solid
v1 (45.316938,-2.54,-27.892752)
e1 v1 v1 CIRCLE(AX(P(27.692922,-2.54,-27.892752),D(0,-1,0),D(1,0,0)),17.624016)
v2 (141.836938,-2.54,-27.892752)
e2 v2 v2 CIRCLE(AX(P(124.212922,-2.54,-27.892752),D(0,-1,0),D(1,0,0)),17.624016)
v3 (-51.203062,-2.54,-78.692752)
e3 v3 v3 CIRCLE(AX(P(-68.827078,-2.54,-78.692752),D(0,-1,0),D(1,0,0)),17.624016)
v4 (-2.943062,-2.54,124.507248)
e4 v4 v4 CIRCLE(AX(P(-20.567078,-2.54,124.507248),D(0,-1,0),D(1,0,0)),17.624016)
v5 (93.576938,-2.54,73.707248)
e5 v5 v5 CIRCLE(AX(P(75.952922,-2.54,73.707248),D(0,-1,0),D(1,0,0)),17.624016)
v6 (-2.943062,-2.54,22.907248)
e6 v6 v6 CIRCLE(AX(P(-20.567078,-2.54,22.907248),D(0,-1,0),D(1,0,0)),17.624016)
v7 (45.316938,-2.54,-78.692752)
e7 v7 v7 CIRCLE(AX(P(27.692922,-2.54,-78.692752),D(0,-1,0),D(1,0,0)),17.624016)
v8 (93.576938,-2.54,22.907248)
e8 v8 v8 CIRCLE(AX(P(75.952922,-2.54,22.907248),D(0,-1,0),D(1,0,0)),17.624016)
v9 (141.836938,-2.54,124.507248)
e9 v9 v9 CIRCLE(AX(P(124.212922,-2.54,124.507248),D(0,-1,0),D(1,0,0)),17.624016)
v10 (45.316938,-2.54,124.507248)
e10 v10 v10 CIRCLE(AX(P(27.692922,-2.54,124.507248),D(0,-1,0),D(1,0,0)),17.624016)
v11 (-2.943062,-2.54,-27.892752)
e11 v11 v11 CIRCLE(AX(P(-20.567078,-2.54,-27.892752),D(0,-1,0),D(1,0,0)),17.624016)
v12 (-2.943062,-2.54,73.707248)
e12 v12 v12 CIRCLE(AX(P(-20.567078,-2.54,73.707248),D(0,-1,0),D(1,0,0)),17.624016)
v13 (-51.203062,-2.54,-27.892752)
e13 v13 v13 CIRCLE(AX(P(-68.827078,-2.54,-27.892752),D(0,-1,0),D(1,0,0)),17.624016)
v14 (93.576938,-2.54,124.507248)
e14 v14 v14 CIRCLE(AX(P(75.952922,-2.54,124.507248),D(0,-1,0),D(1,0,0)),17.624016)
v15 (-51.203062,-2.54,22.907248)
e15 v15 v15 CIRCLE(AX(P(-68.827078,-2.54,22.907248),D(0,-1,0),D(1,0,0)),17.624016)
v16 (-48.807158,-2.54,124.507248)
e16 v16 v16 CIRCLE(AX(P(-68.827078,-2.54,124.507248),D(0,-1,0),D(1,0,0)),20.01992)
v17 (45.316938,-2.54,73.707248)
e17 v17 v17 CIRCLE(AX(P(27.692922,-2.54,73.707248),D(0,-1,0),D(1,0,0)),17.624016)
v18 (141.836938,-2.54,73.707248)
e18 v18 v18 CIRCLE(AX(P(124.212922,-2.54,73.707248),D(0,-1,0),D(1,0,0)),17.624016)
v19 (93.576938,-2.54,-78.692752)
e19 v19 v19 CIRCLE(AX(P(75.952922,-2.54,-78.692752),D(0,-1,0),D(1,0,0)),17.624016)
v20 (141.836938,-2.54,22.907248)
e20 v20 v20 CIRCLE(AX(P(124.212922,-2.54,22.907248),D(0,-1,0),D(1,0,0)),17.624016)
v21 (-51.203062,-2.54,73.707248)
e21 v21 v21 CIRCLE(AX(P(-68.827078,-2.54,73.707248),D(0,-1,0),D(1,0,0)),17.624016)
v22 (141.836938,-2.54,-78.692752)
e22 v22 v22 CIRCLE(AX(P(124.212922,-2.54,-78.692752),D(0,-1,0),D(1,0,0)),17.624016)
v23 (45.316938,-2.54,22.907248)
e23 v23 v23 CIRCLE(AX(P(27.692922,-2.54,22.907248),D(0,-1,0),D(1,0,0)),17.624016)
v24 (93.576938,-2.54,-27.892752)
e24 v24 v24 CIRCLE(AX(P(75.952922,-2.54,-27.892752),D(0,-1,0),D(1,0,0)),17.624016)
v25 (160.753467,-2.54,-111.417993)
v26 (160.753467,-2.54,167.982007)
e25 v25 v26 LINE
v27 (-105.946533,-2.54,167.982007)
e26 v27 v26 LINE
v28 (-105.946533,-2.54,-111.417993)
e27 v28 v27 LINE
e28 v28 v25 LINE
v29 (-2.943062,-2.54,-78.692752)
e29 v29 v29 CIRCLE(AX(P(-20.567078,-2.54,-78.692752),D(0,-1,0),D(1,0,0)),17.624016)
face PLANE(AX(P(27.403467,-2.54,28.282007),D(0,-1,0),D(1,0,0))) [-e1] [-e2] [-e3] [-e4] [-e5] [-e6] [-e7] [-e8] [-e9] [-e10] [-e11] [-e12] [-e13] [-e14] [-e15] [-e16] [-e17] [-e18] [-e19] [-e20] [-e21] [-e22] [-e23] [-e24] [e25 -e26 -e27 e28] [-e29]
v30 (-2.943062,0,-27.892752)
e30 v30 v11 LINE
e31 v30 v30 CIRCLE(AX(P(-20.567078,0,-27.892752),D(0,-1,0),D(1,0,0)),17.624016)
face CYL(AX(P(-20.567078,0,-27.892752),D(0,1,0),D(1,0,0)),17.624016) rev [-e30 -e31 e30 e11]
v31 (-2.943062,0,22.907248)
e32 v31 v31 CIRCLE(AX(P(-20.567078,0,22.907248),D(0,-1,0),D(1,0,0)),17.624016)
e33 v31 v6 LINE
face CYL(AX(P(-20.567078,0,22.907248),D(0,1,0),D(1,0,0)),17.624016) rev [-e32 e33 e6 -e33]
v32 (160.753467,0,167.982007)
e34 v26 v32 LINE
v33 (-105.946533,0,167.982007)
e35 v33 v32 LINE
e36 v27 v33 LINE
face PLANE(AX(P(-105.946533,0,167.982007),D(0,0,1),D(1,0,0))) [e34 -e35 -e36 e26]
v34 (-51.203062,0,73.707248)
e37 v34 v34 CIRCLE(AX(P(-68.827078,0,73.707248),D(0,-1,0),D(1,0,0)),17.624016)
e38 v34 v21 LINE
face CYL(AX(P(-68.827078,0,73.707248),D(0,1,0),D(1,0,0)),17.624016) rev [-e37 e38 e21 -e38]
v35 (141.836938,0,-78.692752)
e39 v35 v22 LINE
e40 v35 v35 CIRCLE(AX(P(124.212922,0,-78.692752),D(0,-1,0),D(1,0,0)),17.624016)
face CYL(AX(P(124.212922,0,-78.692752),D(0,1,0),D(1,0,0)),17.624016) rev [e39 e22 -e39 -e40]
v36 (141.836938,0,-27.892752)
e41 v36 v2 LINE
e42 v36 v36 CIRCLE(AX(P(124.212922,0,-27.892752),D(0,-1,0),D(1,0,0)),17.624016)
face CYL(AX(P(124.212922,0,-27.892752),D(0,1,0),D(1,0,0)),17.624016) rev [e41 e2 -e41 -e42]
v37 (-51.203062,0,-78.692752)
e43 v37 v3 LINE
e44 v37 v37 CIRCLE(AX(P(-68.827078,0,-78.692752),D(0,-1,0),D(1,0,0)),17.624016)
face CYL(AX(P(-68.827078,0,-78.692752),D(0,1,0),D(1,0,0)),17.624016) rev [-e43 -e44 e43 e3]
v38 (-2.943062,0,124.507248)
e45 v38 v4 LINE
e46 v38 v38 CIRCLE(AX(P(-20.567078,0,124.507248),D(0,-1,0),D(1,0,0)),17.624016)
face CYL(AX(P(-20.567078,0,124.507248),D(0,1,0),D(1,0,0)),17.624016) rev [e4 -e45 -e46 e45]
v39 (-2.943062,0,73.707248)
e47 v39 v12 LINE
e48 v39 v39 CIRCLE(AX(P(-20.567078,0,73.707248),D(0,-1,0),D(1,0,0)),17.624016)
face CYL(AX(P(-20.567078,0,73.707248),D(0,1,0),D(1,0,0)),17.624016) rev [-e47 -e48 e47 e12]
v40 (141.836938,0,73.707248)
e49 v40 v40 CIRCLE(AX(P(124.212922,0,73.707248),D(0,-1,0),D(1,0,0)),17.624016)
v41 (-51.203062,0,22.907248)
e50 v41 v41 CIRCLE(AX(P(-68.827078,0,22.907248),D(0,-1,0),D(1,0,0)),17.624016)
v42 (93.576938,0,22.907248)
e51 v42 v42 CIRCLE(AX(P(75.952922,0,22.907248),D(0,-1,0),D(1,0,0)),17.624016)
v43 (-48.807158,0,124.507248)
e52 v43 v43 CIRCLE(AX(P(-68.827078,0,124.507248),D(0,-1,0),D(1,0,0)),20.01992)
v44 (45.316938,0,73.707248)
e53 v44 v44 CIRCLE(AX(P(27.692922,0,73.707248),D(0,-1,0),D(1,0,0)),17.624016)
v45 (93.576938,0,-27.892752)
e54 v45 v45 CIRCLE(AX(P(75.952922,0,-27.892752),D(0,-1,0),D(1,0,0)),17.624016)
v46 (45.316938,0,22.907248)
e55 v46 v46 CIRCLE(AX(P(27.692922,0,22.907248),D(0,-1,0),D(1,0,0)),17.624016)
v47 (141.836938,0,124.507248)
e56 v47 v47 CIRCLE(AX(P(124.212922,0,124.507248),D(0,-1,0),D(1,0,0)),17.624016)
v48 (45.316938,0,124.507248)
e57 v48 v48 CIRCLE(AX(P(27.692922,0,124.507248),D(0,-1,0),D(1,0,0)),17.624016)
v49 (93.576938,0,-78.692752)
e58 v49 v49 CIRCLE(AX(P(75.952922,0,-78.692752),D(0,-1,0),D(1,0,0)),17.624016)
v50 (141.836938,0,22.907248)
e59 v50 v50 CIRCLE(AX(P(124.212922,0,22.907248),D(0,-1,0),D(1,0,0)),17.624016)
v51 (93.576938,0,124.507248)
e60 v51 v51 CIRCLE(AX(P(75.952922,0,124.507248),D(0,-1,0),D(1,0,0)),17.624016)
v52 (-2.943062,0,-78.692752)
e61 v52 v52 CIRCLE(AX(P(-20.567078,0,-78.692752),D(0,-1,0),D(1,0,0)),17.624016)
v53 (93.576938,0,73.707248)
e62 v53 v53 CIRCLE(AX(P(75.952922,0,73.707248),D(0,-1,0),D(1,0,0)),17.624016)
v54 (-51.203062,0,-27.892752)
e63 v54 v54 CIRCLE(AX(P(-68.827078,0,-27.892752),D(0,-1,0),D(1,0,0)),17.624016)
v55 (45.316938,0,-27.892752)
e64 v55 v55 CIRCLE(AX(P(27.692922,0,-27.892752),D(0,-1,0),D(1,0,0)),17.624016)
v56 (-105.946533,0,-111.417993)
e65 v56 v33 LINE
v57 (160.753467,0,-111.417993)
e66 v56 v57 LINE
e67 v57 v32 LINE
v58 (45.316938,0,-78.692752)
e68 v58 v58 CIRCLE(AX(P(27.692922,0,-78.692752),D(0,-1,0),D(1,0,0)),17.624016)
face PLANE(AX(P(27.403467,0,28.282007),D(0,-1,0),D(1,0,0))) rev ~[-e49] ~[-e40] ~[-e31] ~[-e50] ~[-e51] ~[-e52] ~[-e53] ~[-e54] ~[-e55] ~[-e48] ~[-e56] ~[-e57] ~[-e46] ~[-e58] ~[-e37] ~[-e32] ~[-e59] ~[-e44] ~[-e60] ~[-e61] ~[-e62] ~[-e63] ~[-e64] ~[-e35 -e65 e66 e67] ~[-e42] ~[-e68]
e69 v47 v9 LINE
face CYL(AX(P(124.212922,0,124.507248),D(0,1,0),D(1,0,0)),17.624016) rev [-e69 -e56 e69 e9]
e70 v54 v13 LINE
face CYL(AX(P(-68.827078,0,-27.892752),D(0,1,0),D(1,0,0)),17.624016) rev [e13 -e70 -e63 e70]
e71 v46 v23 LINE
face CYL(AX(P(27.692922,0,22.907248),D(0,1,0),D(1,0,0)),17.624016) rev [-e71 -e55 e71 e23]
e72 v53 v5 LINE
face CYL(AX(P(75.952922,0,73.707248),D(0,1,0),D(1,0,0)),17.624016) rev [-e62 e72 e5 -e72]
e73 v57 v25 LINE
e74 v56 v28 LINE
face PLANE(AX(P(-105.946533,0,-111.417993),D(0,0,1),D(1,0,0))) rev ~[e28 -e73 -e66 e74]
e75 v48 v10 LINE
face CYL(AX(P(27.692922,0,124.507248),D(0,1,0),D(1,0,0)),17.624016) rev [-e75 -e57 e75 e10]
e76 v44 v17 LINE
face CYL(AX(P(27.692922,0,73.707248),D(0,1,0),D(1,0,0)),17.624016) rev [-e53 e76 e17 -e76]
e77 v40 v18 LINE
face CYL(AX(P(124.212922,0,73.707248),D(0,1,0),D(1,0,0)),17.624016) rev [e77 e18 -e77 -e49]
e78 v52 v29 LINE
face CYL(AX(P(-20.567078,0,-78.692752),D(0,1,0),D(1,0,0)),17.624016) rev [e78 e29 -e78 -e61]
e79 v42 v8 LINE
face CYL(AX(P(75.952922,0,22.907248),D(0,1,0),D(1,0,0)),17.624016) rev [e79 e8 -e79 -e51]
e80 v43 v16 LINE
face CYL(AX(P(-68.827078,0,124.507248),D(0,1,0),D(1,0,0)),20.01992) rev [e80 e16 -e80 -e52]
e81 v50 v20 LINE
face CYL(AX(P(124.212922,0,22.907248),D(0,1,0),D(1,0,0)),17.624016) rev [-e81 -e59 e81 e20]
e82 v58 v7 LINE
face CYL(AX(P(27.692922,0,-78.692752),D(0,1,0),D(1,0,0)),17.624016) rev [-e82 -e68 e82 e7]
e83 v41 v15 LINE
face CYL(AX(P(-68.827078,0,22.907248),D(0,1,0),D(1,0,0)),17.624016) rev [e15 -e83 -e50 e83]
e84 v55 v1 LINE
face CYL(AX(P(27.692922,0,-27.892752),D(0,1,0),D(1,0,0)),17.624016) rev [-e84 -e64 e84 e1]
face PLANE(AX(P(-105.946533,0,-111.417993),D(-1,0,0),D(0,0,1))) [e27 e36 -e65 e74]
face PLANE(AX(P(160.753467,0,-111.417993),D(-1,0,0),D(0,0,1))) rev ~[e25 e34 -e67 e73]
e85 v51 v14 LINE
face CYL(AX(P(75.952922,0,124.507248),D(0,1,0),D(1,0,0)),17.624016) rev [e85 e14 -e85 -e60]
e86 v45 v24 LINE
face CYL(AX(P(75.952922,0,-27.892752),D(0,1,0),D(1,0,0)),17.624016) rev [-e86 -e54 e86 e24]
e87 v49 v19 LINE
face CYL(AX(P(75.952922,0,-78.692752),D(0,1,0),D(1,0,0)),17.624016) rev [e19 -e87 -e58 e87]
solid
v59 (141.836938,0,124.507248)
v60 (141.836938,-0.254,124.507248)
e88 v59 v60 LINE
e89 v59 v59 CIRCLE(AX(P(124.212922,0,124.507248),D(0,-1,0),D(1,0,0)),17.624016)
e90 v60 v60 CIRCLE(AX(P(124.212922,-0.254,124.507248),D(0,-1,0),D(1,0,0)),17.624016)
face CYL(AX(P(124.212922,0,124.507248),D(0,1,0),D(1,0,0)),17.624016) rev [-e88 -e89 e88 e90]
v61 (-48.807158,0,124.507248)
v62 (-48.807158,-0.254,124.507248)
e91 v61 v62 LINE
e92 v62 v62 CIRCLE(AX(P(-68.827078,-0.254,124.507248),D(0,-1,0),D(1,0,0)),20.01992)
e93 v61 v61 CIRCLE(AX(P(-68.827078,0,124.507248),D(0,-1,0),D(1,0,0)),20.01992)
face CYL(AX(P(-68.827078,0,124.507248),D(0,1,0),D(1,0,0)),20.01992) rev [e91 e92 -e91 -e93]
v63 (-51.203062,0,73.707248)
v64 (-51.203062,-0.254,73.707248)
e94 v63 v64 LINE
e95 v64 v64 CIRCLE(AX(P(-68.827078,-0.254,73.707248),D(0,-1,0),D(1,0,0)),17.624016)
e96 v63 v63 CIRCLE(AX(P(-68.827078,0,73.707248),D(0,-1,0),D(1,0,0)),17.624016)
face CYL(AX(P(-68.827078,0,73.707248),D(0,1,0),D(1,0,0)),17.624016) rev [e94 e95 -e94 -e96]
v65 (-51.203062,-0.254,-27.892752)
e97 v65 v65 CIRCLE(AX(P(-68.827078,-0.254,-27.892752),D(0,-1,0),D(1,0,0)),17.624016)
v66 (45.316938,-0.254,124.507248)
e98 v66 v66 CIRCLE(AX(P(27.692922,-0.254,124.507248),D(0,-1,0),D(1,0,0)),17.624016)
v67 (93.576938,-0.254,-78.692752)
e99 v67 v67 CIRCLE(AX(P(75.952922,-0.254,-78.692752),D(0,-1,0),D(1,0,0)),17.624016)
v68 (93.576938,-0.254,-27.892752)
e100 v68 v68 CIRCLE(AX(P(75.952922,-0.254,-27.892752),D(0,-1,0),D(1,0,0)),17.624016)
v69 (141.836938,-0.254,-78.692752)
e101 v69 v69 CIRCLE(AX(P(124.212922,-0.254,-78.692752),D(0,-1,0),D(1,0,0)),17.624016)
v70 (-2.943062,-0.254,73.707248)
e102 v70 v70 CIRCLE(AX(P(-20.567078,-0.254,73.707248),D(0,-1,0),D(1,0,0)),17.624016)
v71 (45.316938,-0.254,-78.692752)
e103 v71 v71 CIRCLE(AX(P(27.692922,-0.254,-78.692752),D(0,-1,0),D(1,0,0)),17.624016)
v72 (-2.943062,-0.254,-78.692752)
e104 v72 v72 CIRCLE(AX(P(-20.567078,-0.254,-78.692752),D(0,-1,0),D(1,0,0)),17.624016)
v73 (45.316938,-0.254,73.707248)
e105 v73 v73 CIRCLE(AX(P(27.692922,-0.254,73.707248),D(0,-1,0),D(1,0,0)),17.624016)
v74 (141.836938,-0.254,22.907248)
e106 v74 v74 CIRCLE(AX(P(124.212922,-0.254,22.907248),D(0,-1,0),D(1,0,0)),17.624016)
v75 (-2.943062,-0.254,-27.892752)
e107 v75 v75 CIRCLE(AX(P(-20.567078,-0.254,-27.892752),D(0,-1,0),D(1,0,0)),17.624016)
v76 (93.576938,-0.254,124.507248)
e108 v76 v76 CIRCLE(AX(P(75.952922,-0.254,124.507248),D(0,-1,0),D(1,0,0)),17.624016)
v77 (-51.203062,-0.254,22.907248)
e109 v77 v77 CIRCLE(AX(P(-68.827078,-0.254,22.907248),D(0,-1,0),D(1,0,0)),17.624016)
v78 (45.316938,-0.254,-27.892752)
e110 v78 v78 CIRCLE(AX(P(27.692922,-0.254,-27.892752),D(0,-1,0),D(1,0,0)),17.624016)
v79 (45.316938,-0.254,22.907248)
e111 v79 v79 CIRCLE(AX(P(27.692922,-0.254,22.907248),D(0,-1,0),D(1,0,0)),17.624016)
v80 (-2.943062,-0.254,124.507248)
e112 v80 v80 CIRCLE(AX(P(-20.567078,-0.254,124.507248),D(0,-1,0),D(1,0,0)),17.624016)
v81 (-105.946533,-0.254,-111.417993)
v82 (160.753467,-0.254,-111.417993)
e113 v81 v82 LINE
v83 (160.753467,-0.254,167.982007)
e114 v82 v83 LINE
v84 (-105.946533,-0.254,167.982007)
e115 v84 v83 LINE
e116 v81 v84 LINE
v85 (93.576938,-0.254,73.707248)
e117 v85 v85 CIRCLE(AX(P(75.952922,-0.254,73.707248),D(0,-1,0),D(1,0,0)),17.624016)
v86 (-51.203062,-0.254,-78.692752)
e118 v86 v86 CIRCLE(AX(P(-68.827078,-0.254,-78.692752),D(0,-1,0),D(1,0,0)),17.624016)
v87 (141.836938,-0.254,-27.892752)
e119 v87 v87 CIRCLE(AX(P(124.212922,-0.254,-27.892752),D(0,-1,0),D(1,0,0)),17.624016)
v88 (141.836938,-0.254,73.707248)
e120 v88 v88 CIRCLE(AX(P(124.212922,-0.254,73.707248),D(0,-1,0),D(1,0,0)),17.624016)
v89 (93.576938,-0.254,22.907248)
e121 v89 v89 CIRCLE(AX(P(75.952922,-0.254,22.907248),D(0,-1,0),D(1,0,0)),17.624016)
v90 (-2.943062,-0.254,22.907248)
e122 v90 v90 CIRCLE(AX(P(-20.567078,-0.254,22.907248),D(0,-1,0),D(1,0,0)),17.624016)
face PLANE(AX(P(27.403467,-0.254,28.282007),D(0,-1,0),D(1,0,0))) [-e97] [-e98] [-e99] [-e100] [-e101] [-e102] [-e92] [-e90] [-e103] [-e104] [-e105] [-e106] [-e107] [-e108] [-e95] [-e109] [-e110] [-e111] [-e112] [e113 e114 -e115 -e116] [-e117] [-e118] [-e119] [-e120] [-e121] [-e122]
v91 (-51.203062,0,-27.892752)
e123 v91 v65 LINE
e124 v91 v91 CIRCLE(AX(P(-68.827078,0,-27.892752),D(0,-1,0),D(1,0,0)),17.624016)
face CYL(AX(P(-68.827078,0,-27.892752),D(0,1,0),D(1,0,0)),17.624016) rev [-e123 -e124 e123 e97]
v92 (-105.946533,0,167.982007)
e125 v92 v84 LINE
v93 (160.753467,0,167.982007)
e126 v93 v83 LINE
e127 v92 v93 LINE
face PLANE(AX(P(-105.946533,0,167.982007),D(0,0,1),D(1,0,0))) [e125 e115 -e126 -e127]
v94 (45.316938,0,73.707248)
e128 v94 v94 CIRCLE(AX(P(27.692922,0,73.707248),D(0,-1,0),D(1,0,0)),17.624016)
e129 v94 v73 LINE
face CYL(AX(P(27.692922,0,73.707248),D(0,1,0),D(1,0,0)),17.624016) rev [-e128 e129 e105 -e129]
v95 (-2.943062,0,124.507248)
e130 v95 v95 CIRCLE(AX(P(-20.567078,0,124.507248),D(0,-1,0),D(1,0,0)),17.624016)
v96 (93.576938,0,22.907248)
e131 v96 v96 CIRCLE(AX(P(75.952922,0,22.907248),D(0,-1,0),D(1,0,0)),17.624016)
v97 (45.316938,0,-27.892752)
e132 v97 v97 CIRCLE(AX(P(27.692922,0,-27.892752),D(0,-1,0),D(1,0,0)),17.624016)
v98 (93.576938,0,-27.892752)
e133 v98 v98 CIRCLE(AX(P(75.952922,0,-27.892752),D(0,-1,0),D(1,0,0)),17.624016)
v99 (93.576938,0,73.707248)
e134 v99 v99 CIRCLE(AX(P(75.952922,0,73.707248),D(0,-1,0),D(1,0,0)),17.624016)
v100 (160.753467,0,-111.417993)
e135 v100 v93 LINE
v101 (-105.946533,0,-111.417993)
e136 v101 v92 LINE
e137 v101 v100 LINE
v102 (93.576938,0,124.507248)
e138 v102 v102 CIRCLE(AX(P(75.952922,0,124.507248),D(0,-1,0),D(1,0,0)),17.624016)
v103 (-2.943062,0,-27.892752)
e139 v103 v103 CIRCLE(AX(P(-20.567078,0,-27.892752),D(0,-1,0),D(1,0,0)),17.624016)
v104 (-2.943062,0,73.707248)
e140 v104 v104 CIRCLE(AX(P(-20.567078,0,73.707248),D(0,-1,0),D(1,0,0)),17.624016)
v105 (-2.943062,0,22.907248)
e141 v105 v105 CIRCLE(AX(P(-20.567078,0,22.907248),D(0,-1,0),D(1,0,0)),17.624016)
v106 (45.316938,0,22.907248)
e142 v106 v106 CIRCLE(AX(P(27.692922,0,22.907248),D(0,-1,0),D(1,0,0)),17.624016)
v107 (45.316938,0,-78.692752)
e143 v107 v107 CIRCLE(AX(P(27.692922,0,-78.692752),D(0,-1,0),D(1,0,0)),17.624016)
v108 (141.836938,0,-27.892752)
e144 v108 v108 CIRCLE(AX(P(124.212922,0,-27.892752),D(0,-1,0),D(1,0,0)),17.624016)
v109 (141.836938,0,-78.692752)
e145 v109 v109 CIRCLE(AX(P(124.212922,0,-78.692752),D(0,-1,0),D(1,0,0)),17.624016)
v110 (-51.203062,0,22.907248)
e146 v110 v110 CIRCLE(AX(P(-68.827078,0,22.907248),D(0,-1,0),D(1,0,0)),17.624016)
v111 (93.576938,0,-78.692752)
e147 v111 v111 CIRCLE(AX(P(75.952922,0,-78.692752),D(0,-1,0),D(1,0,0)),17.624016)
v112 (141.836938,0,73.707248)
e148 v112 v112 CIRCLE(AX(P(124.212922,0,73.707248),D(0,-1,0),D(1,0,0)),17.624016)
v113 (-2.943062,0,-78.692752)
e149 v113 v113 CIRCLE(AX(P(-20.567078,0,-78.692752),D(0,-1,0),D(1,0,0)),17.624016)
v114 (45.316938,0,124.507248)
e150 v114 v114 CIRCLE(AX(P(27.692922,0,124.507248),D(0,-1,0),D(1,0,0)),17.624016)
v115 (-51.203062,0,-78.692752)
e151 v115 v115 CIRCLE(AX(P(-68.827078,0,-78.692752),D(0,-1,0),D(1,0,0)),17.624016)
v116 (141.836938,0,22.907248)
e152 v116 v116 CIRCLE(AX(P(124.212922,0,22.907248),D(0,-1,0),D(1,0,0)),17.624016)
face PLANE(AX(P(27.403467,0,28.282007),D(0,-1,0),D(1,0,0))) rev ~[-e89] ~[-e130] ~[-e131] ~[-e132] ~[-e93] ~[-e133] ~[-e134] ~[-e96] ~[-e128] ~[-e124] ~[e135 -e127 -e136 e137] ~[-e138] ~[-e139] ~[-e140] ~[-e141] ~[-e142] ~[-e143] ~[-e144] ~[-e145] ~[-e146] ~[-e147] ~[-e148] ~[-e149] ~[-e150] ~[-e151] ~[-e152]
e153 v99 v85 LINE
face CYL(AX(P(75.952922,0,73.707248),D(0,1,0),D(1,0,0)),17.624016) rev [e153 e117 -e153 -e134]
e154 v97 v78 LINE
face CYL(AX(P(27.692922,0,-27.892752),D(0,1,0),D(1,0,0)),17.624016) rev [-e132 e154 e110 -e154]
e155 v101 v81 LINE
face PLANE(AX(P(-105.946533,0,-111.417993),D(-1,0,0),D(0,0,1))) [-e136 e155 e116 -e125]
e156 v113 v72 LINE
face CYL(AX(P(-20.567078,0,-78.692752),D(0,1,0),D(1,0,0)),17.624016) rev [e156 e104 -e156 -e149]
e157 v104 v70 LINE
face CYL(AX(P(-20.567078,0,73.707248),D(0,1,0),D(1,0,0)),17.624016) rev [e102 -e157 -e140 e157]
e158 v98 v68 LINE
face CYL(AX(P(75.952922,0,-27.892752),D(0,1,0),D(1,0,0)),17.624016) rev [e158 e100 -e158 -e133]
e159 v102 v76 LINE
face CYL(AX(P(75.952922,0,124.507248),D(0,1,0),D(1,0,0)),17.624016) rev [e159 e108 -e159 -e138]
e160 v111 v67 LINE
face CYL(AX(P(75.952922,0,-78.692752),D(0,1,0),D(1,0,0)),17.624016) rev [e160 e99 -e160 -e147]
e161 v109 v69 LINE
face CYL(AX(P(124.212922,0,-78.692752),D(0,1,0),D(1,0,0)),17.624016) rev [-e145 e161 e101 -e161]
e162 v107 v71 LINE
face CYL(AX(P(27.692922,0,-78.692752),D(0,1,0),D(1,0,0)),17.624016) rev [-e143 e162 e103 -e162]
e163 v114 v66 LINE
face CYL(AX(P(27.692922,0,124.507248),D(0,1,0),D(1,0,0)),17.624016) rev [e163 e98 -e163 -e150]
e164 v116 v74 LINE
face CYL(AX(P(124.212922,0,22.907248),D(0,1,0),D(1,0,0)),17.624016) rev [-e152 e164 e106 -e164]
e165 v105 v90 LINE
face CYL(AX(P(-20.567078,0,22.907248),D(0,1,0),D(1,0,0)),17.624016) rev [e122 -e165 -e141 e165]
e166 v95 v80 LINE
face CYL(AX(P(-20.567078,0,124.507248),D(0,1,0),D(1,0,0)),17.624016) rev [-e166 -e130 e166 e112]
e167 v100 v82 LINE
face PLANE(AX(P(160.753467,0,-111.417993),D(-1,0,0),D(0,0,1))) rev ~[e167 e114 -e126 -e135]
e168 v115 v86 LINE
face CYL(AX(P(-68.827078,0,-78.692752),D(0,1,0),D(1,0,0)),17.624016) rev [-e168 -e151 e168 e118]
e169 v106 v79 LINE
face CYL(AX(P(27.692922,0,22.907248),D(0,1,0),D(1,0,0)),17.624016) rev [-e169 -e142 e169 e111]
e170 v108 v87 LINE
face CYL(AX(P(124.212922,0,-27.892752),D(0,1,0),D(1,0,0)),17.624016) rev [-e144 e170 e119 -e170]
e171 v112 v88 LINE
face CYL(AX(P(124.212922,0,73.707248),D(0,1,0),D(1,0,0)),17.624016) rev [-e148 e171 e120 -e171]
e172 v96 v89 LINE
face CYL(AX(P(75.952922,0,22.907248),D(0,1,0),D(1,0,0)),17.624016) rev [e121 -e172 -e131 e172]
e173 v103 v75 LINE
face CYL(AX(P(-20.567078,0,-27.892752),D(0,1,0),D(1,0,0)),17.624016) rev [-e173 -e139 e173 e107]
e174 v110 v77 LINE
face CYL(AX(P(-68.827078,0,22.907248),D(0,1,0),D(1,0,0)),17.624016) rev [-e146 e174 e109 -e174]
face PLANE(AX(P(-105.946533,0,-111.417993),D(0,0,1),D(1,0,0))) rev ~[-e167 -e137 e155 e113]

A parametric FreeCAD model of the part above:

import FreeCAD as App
import Part
import Sketcher
Q = App.Units.Quantity


def add_polygon(sketch, points):
    """Adds a closed chain of lines whose ends are joined by coincident constraints."""
    first, n = sketch.GeometryCount, len(points)
    for a, b in zip(points, points[1:] + points[:1]):
        sketch.addGeometry(Part.LineSegment(App.Vector(*a, 0), App.Vector(*b, 0)), False)
    for i in range(n):
        sketch.addConstraint(Sketcher.Constraint("Coincident", first + i, 2, first + (i + 1) % n, 1))

doc = App.newDocument("Part")
body = doc.addObject("PartDesign::Body", "Body")

sketch1 = body.newObject("Sketcher::SketchObject", "Sketch")
sketch1.AttachmentSupport = (doc.getObject("XZ_Plane"), [""])
sketch1.MapMode = "FlatFace"
add_polygon(sketch1, [(-105.946533, 167.982007), (-105.946533, -111.417993), (160.753467, -111.417993), (160.753467, 167.982007)])
sketch1.addGeometry(Part.Circle(App.Vector(-68.827078, -78.692752, 0), App.Vector(0, 0, 1), 17.624016), False)
sketch1.addGeometry(Part.Circle(App.Vector(-20.567078, -78.692752, 0), App.Vector(0, 0, 1), 17.624016), False)
sketch1.addGeometry(Part.Circle(App.Vector(-68.827078, -27.892752, 0), App.Vector(0, 0, 1), 17.624016), False)
sketch1.addGeometry(Part.Circle(App.Vector(-68.827078, 22.907248, 0), App.Vector(0, 0, 1), 17.624016), False)
sketch1.addGeometry(Part.Circle(App.Vector(-20.567078, -27.892752, 0), App.Vector(0, 0, 1), 17.624016), False)
sketch1.addGeometry(Part.Circle(App.Vector(-20.567078, 22.907248, 0), App.Vector(0, 0, 1), 17.624016), False)
sketch1.addGeometry(Part.Circle(App.Vector(27.692922, -78.692752, 0), App.Vector(0, 0, 1), 17.624016), False)
sketch1.addGeometry(Part.Circle(App.Vector(75.952922, -78.692752, 0), App.Vector(0, 0, 1), 17.624016), False)
sketch1.addGeometry(Part.Circle(App.Vector(124.212922, -78.692752, 0), App.Vector(0, 0, 1), 17.624016), False)
sketch1.addGeometry(Part.Circle(App.Vector(27.692922, -27.892752, 0), App.Vector(0, 0, 1), 17.624016), False)
sketch1.addGeometry(Part.Circle(App.Vector(75.952922, -27.892752, 0), App.Vector(0, 0, 1), 17.624016), False)
sketch1.addGeometry(Part.Circle(App.Vector(27.692922, 22.907248, 0), App.Vector(0, 0, 1), 17.624016), False)
sketch1.addGeometry(Part.Circle(App.Vector(75.952922, 22.907248, 0), App.Vector(0, 0, 1), 17.624016), False)
sketch1.addGeometry(Part.Circle(App.Vector(124.212922, -27.892752, 0), App.Vector(0, 0, 1), 17.624016), False)
sketch1.addGeometry(Part.Circle(App.Vector(124.212922, 22.907248, 0), App.Vector(0, 0, 1), 17.624016), False)
sketch1.addGeometry(Part.Circle(App.Vector(-68.827078, 73.707248, 0), App.Vector(0, 0, 1), 17.624016), False)
sketch1.addGeometry(Part.Circle(App.Vector(-20.567078, 73.707248, 0), App.Vector(0, 0, 1), 17.624016), False)
sketch1.addGeometry(Part.Circle(App.Vector(-68.827078, 124.507248, 0), App.Vector(0, 0, 1), 20.01992), False)
sketch1.addGeometry(Part.Circle(App.Vector(-20.567078, 124.507248, 0), App.Vector(0, 0, 1), 17.624016), False)
sketch1.addGeometry(Part.Circle(App.Vector(27.692922, 73.707248, 0), App.Vector(0, 0, 1), 17.624016), False)
sketch1.addGeometry(Part.Circle(App.Vector(75.952922, 73.707248, 0), App.Vector(0, 0, 1), 17.624016), False)
sketch1.addGeometry(Part.Circle(App.Vector(124.212922, 73.707248, 0), App.Vector(0, 0, 1), 17.624016), False)
sketch1.addGeometry(Part.Circle(App.Vector(27.692922, 124.507248, 0), App.Vector(0, 0, 1), 17.624016), False)
sketch1.addGeometry(Part.Circle(App.Vector(75.952922, 124.507248, 0), App.Vector(0, 0, 1), 17.624016), False)
sketch1.addGeometry(Part.Circle(App.Vector(124.212922, 124.507248, 0), App.Vector(0, 0, 1), 17.624016), False)
sketch1.addConstraint(Sketcher.Constraint("Vertical", 0))
sketch1.addConstraint(Sketcher.Constraint("Horizontal", 1))
sketch1.addConstraint(Sketcher.Constraint("Vertical", 2))
sketch1.addConstraint(Sketcher.Constraint("Horizontal", 3))
sketch1.addConstraint(Sketcher.Constraint("Equal", 4, 5))
sketch1.addConstraint(Sketcher.Constraint("Equal", 5, 6))
sketch1.addConstraint(Sketcher.Constraint("Equal", 6, 7))
sketch1.addConstraint(Sketcher.Constraint("Equal", 7, 8))
sketch1.addConstraint(Sketcher.Constraint("Equal", 8, 9))
sketch1.addConstraint(Sketcher.Constraint("Equal", 9, 10))
sketch1.addConstraint(Sketcher.Constraint("Equal", 10, 11))
sketch1.addConstraint(Sketcher.Constraint("Equal", 11, 12))
sketch1.addConstraint(Sketcher.Constraint("Equal", 12, 13))
sketch1.addConstraint(Sketcher.Constraint("Equal", 13, 14))
sketch1.addConstraint(Sketcher.Constraint("Equal", 14, 15))
sketch1.addConstraint(Sketcher.Constraint("Equal", 15, 16))
sketch1.addConstraint(Sketcher.Constraint("Equal", 16, 17))
sketch1.addConstraint(Sketcher.Constraint("Equal", 17, 18))
sketch1.addConstraint(Sketcher.Constraint("Equal", 18, 19))
sketch1.addConstraint(Sketcher.Constraint("Equal", 19, 20))
sketch1.addConstraint(Sketcher.Constraint("Equal", 20, 22))
sketch1.addConstraint(Sketcher.Constraint("Equal", 22, 23))
sketch1.addConstraint(Sketcher.Constraint("Equal", 23, 24))
sketch1.addConstraint(Sketcher.Constraint("Equal", 24, 25))
sketch1.addConstraint(Sketcher.Constraint("Equal", 25, 26))
sketch1.addConstraint(Sketcher.Constraint("Equal", 26, 27))
sketch1.addConstraint(Sketcher.Constraint("Equal", 27, 28))
sketch1.addConstraint(Sketcher.Constraint("Horizontal", 4, 3, 5, 3))
sketch1.addConstraint(Sketcher.Constraint("Horizontal", 6, 3, 8, 3))
sketch1.addConstraint(Sketcher.Constraint("Horizontal", 7, 3, 9, 3))
sketch1.addConstraint(Sketcher.Constraint("Horizontal", 5, 3, 10, 3))
sketch1.addConstraint(Sketcher.Constraint("Horizontal", 10, 3, 11, 3))
sketch1.addConstraint(Sketcher.Constraint("Horizontal", 11, 3, 12, 3))
sketch1.addConstraint(Sketcher.Constraint("Horizontal", 8, 3, 13, 3))
sketch1.addConstraint(Sketcher.Constraint("Horizontal", 13, 3, 14, 3))
sketch1.addConstraint(Sketcher.Constraint("Horizontal", 9, 3, 15, 3))
sketch1.addConstraint(Sketcher.Constraint("Horizontal", 15, 3, 16, 3))
sketch1.addConstraint(Sketcher.Constraint("Horizontal", 14, 3, 17, 3))
sketch1.addConstraint(Sketcher.Constraint("Horizontal", 16, 3, 18, 3))
sketch1.addConstraint(Sketcher.Constraint("Horizontal", 19, 3, 20, 3))
sketch1.addConstraint(Sketcher.Constraint("Horizontal", 21, 3, 22, 3))
sketch1.addConstraint(Sketcher.Constraint("Horizontal", 20, 3, 23, 3))
sketch1.addConstraint(Sketcher.Constraint("Horizontal", 23, 3, 24, 3))
sketch1.addConstraint(Sketcher.Constraint("Horizontal", 24, 3, 25, 3))
sketch1.addConstraint(Sketcher.Constraint("Horizontal", 22, 3, 26, 3))
sketch1.addConstraint(Sketcher.Constraint("Horizontal", 26, 3, 27, 3))
sketch1.addConstraint(Sketcher.Constraint("Horizontal", 27, 3, 28, 3))
sketch1.addConstraint(Sketcher.Constraint("Vertical", 4, 3, 6, 3))
sketch1.addConstraint(Sketcher.Constraint("Vertical", 6, 3, 7, 3))
sketch1.addConstraint(Sketcher.Constraint("Vertical", 5, 3, 8, 3))
sketch1.addConstraint(Sketcher.Constraint("Vertical", 8, 3, 9, 3))
sketch1.addConstraint(Sketcher.Constraint("Vertical", 10, 3, 13, 3))
sketch1.addConstraint(Sketcher.Constraint("Vertical", 11, 3, 14, 3))
sketch1.addConstraint(Sketcher.Constraint("Vertical", 13, 3, 15, 3))
sketch1.addConstraint(Sketcher.Constraint("Vertical", 14, 3, 16, 3))
sketch1.addConstraint(Sketcher.Constraint("Vertical", 12, 3, 17, 3))
sketch1.addConstraint(Sketcher.Constraint("Vertical", 17, 3, 18, 3))
sketch1.addConstraint(Sketcher.Constraint("Vertical", 7, 3, 19, 3))
sketch1.addConstraint(Sketcher.Constraint("Vertical", 9, 3, 20, 3))
sketch1.addConstraint(Sketcher.Constraint("Vertical", 19, 3, 21, 3))
sketch1.addConstraint(Sketcher.Constraint("Vertical", 20, 3, 22, 3))
sketch1.addConstraint(Sketcher.Constraint("Vertical", 15, 3, 23, 3))
sketch1.addConstraint(Sketcher.Constraint("Vertical", 16, 3, 24, 3))
sketch1.addConstraint(Sketcher.Constraint("Vertical", 18, 3, 25, 3))
sketch1.addConstraint(Sketcher.Constraint("Vertical", 23, 3, 26, 3))
sketch1.addConstraint(Sketcher.Constraint("Vertical", 24, 3, 27, 3))
sketch1.addConstraint(Sketcher.Constraint("Vertical", 25, 3, 28, 3))
sketch1.addConstraint(Sketcher.Constraint("DistanceY", 0, 2, 0, 1, Q("11 in")))
sketch1.addConstraint(Sketcher.Constraint("DistanceX", 1, 1, 1, 2, Q("10.5 in")))
sketch1.addConstraint(Sketcher.Constraint("DistanceY", 4, 3, 6, 3, Q("2 in")))
sketch1.addConstraint(Sketcher.Constraint("DistanceY", 6, 3, 7, 3, Q("2 in")))
sketch1.addConstraint(Sketcher.Constraint("DistanceY", 7, 3, 19, 3, Q("2 in")))
sketch1.addConstraint(Sketcher.Constraint("DistanceY", 19, 3, 21, 3, Q("2 in")))
sketch1.addConstraint(Sketcher.Constraint("DistanceX", 4, 3, 5, 3, Q("1.9 in")))
sketch1.addConstraint(Sketcher.Constraint("DistanceX", 5, 3, 10, 3, Q("1.9 in")))
sketch1.addConstraint(Sketcher.Constraint("DistanceX", 10, 3, 11, 3, Q("1.9 in")))
sketch1.addConstraint(Sketcher.Constraint("DistanceX", 11, 3, 12, 3, Q("1.9 in")))
sketch1.addConstraint(Sketcher.Constraint("Diameter", 21, 40.03984))
sketch1.addConstraint(Sketcher.Constraint("Diameter", 4, 35.248032))
sketch1.addConstraint(Sketcher.Constraint("DistanceX", 4, 3, -1, 1, 68.827078))
sketch1.addConstraint(Sketcher.Constraint("DistanceY", 4, 3, -1, 1, 78.692752))
sketch1.addConstraint(Sketcher.Constraint("DistanceY", 0, 2, 4, 3, 32.725241))
sketch1.addConstraint(Sketcher.Constraint("DistanceX", 0, 2, -1, 1, 105.946533))
pad1 = body.newObject("PartDesign::Pad", "Pad")
pad1.Profile = sketch1
pad1.Length = Q("0.1 in")

sketch2 = body.newObject("Sketcher::SketchObject", "Sketch001")
sketch2.AttachmentSupport = (doc.getObject("XZ_Plane"), [""])
sketch2.MapMode = "FlatFace"
add_polygon(sketch2, [(-105.946533, 167.982007), (-105.946533, -111.417993), (160.753467, -111.417993), (160.753467, 167.982007)])
sketch2.addGeometry(Part.Circle(App.Vector(-68.827078, -78.692752, 0), App.Vector(0, 0, 1), 17.624016), False)
sketch2.addGeometry(Part.Circle(App.Vector(-20.567078, -78.692752, 0), App.Vector(0, 0, 1), 17.624016), False)
sketch2.addGeometry(Part.Circle(App.Vector(-68.827078, -27.892752, 0), App.Vector(0, 0, 1), 17.624016), False)
sketch2.addGeometry(Part.Circle(App.Vector(-68.827078, 22.907248, 0), App.Vector(0, 0, 1), 17.624016), False)
sketch2.addGeometry(Part.Circle(App.Vector(-20.567078, -27.892752, 0), App.Vector(0, 0, 1), 17.624016), False)
sketch2.addGeometry(Part.Circle(App.Vector(-20.567078, 22.907248, 0), App.Vector(0, 0, 1), 17.624016), False)
sketch2.addGeometry(Part.Circle(App.Vector(27.692922, -78.692752, 0), App.Vector(0, 0, 1), 17.624016), False)
sketch2.addGeometry(Part.Circle(App.Vector(75.952922, -78.692752, 0), App.Vector(0, 0, 1), 17.624016), False)
sketch2.addGeometry(Part.Circle(App.Vector(124.212922, -78.692752, 0), App.Vector(0, 0, 1), 17.624016), False)
sketch2.addGeometry(Part.Circle(App.Vector(27.692922, -27.892752, 0), App.Vector(0, 0, 1), 17.624016), False)
sketch2.addGeometry(Part.Circle(App.Vector(75.952922, -27.892752, 0), App.Vector(0, 0, 1), 17.624016), False)
sketch2.addGeometry(Part.Circle(App.Vector(27.692922, 22.907248, 0), App.Vector(0, 0, 1), 17.624016), False)
sketch2.addGeometry(Part.Circle(App.Vector(75.952922, 22.907248, 0), App.Vector(0, 0, 1), 17.624016), False)
sketch2.addGeometry(Part.Circle(App.Vector(124.212922, -27.892752, 0), App.Vector(0, 0, 1), 17.624016), False)
sketch2.addGeometry(Part.Circle(App.Vector(124.212922, 22.907248, 0), App.Vector(0, 0, 1), 17.624016), False)
sketch2.addGeometry(Part.Circle(App.Vector(-68.827078, 73.707248, 0), App.Vector(0, 0, 1), 17.624016), False)
sketch2.addGeometry(Part.Circle(App.Vector(-20.567078, 73.707248, 0), App.Vector(0, 0, 1), 17.624016), False)
sketch2.addGeometry(Part.Circle(App.Vector(-68.827078, 124.507248, 0), App.Vector(0, 0, 1), 20.01992), False)
sketch2.addGeometry(Part.Circle(App.Vector(-20.567078, 124.507248, 0), App.Vector(0, 0, 1), 17.624016), False)
sketch2.addGeometry(Part.Circle(App.Vector(27.692922, 73.707248, 0), App.Vector(0, 0, 1), 17.624016), False)
sketch2.addGeometry(Part.Circle(App.Vector(75.952922, 73.707248, 0), App.Vector(0, 0, 1), 17.624016), False)
sketch2.addGeometry(Part.Circle(App.Vector(124.212922, 73.707248, 0), App.Vector(0, 0, 1), 17.624016), False)
sketch2.addGeometry(Part.Circle(App.Vector(27.692922, 124.507248, 0), App.Vector(0, 0, 1), 17.624016), False)
sketch2.addGeometry(Part.Circle(App.Vector(75.952922, 124.507248, 0), App.Vector(0, 0, 1), 17.624016), False)
sketch2.addGeometry(Part.Circle(App.Vector(124.212922, 124.507248, 0), App.Vector(0, 0, 1), 17.624016), False)
sketch2.addConstraint(Sketcher.Constraint("Vertical", 0))
sketch2.addConstraint(Sketcher.Constraint("Horizontal", 1))
sketch2.addConstraint(Sketcher.Constraint("Vertical", 2))
sketch2.addConstraint(Sketcher.Constraint("Horizontal", 3))
sketch2.addConstraint(Sketcher.Constraint("Equal", 4, 5))
sketch2.addConstraint(Sketcher.Constraint("Equal", 5, 6))
sketch2.addConstraint(Sketcher.Constraint("Equal", 6, 7))
sketch2.addConstraint(Sketcher.Constraint("Equal", 7, 8))
sketch2.addConstraint(Sketcher.Constraint("Equal", 8, 9))
sketch2.addConstraint(Sketcher.Constraint("Equal", 9, 10))
sketch2.addConstraint(Sketcher.Constraint("Equal", 10, 11))
sketch2.addConstraint(Sketcher.Constraint("Equal", 11, 12))
sketch2.addConstraint(Sketcher.Constraint("Equal", 12, 13))
sketch2.addConstraint(Sketcher.Constraint("Equal", 13, 14))
sketch2.addConstraint(Sketcher.Constraint("Equal", 14, 15))
sketch2.addConstraint(Sketcher.Constraint("Equal", 15, 16))
sketch2.addConstraint(Sketcher.Constraint("Equal", 16, 17))
sketch2.addConstraint(Sketcher.Constraint("Equal", 17, 18))
sketch2.addConstraint(Sketcher.Constraint("Equal", 18, 19))
sketch2.addConstraint(Sketcher.Constraint("Equal", 19, 20))
sketch2.addConstraint(Sketcher.Constraint("Equal", 20, 22))
sketch2.addConstraint(Sketcher.Constraint("Equal", 22, 23))
sketch2.addConstraint(Sketcher.Constraint("Equal", 23, 24))
sketch2.addConstraint(Sketcher.Constraint("Equal", 24, 25))
sketch2.addConstraint(Sketcher.Constraint("Equal", 25, 26))
sketch2.addConstraint(Sketcher.Constraint("Equal", 26, 27))
sketch2.addConstraint(Sketcher.Constraint("Equal", 27, 28))
sketch2.addConstraint(Sketcher.Constraint("Horizontal", 4, 3, 5, 3))
sketch2.addConstraint(Sketcher.Constraint("Horizontal", 6, 3, 8, 3))
sketch2.addConstraint(Sketcher.Constraint("Horizontal", 7, 3, 9, 3))
sketch2.addConstraint(Sketcher.Constraint("Horizontal", 5, 3, 10, 3))
sketch2.addConstraint(Sketcher.Constraint("Horizontal", 10, 3, 11, 3))
sketch2.addConstraint(Sketcher.Constraint("Horizontal", 11, 3, 12, 3))
sketch2.addConstraint(Sketcher.Constraint("Horizontal", 8, 3, 13, 3))
sketch2.addConstraint(Sketcher.Constraint("Horizontal", 13, 3, 14, 3))
sketch2.addConstraint(Sketcher.Constraint("Horizontal", 9, 3, 15, 3))
sketch2.addConstraint(Sketcher.Constraint("Horizontal", 15, 3, 16, 3))
sketch2.addConstraint(Sketcher.Constraint("Horizontal", 14, 3, 17, 3))
sketch2.addConstraint(Sketcher.Constraint("Horizontal", 16, 3, 18, 3))
sketch2.addConstraint(Sketcher.Constraint("Horizontal", 19, 3, 20, 3))
sketch2.addConstraint(Sketcher.Constraint("Horizontal", 21, 3, 22, 3))
sketch2.addConstraint(Sketcher.Constraint("Horizontal", 20, 3, 23, 3))
sketch2.addConstraint(Sketcher.Constraint("Horizontal", 23, 3, 24, 3))
sketch2.addConstraint(Sketcher.Constraint("Horizontal", 24, 3, 25, 3))
sketch2.addConstraint(Sketcher.Constraint("Horizontal", 22, 3, 26, 3))
sketch2.addConstraint(Sketcher.Constraint("Horizontal", 26, 3, 27, 3))
sketch2.addConstraint(Sketcher.Constraint("Horizontal", 27, 3, 28, 3))
sketch2.addConstraint(Sketcher.Constraint("Vertical", 4, 3, 6, 3))
sketch2.addConstraint(Sketcher.Constraint("Vertical", 6, 3, 7, 3))
sketch2.addConstraint(Sketcher.Constraint("Vertical", 5, 3, 8, 3))
sketch2.addConstraint(Sketcher.Constraint("Vertical", 8, 3, 9, 3))
sketch2.addConstraint(Sketcher.Constraint("Vertical", 10, 3, 13, 3))
sketch2.addConstraint(Sketcher.Constraint("Vertical", 11, 3, 14, 3))
sketch2.addConstraint(Sketcher.Constraint("Vertical", 13, 3, 15, 3))
sketch2.addConstraint(Sketcher.Constraint("Vertical", 14, 3, 16, 3))
sketch2.addConstraint(Sketcher.Constraint("Vertical", 12, 3, 17, 3))
sketch2.addConstraint(Sketcher.Constraint("Vertical", 17, 3, 18, 3))
sketch2.addConstraint(Sketcher.Constraint("Vertical", 7, 3, 19, 3))
sketch2.addConstraint(Sketcher.Constraint("Vertical", 9, 3, 20, 3))
sketch2.addConstraint(Sketcher.Constraint("Vertical", 19, 3, 21, 3))
sketch2.addConstraint(Sketcher.Constraint("Vertical", 20, 3, 22, 3))
sketch2.addConstraint(Sketcher.Constraint("Vertical", 15, 3, 23, 3))
sketch2.addConstraint(Sketcher.Constraint("Vertical", 16, 3, 24, 3))
sketch2.addConstraint(Sketcher.Constraint("Vertical", 18, 3, 25, 3))
sketch2.addConstraint(Sketcher.Constraint("Vertical", 23, 3, 26, 3))
sketch2.addConstraint(Sketcher.Constraint("Vertical", 24, 3, 27, 3))
sketch2.addConstraint(Sketcher.Constraint("Vertical", 25, 3, 28, 3))
sketch2.addConstraint(Sketcher.Constraint("DistanceY", 0, 2, 0, 1, Q("11 in")))
sketch2.addConstraint(Sketcher.Constraint("DistanceX", 1, 1, 1, 2, Q("10.5 in")))
sketch2.addConstraint(Sketcher.Constraint("DistanceY", 4, 3, 6, 3, Q("2 in")))
sketch2.addConstraint(Sketcher.Constraint("DistanceY", 6, 3, 7, 3, Q("2 in")))
sketch2.addConstraint(Sketcher.Constraint("DistanceY", 7, 3, 19, 3, Q("2 in")))
sketch2.addConstraint(Sketcher.Constraint("DistanceY", 19, 3, 21, 3, Q("2 in")))
sketch2.addConstraint(Sketcher.Constraint("DistanceX", 4, 3, 5, 3, Q("1.9 in")))
sketch2.addConstraint(Sketcher.Constraint("DistanceX", 5, 3, 10, 3, Q("1.9 in")))
sketch2.addConstraint(Sketcher.Constraint("DistanceX", 10, 3, 11, 3, Q("1.9 in")))
sketch2.addConstraint(Sketcher.Constraint("DistanceX", 11, 3, 12, 3, Q("1.9 in")))
sketch2.addConstraint(Sketcher.Constraint("Diameter", 21, 40.03984))
sketch2.addConstraint(Sketcher.Constraint("Diameter", 4, 35.248032))
sketch2.addConstraint(Sketcher.Constraint("DistanceX", 4, 3, -1, 1, 68.827078))
sketch2.addConstraint(Sketcher.Constraint("DistanceY", 4, 3, -1, 1, 78.692752))
sketch2.addConstraint(Sketcher.Constraint("DistanceY", 0, 2, 4, 3, 32.725241))
sketch2.addConstraint(Sketcher.Constraint("DistanceX", 0, 2, -1, 1, 105.946533))
pad2 = body.newObject("PartDesign::Pad", "Pad001")
pad2.Profile = sketch2
pad2.Length = Q("0.05 in")
body2 = doc.addObject("PartDesign::Body", "Body001")

sketch3 = body2.newObject("Sketcher::SketchObject", "Sketch002")
sketch3.AttachmentSupport = (doc.getObject("XZ_Plane001"), [""])
sketch3.MapMode = "FlatFace"
add_polygon(sketch3, [(-105.946533, 167.982007), (-105.946533, -111.417993), (160.753467, -111.417993), (160.753467, 167.982007)])
sketch3.addGeometry(Part.Circle(App.Vector(-68.827078, -78.692752, 0), App.Vector(0, 0, 1), 17.624016), False)
sketch3.addGeometry(Part.Circle(App.Vector(-20.567078, -78.692752, 0), App.Vector(0, 0, 1), 17.624016), False)
sketch3.addGeometry(Part.Circle(App.Vector(-68.827078, -27.892752, 0), App.Vector(0, 0, 1), 17.624016), False)
sketch3.addGeometry(Part.Circle(App.Vector(-68.827078, 22.907248, 0), App.Vector(0, 0, 1), 17.624016), False)
sketch3.addGeometry(Part.Circle(App.Vector(-20.567078, -27.892752, 0), App.Vector(0, 0, 1), 17.624016), False)
sketch3.addGeometry(Part.Circle(App.Vector(-20.567078, 22.907248, 0), App.Vector(0, 0, 1), 17.624016), False)
sketch3.addGeometry(Part.Circle(App.Vector(27.692922, -78.692752, 0), App.Vector(0, 0, 1), 17.624016), False)
sketch3.addGeometry(Part.Circle(App.Vector(75.952922, -78.692752, 0), App.Vector(0, 0, 1), 17.624016), False)
sketch3.addGeometry(Part.Circle(App.Vector(124.212922, -78.692752, 0), App.Vector(0, 0, 1), 17.624016), False)
sketch3.addGeometry(Part.Circle(App.Vector(27.692922, -27.892752, 0), App.Vector(0, 0, 1), 17.624016), False)
sketch3.addGeometry(Part.Circle(App.Vector(75.952922, -27.892752, 0), App.Vector(0, 0, 1), 17.624016), False)
sketch3.addGeometry(Part.Circle(App.Vector(27.692922, 22.907248, 0), App.Vector(0, 0, 1), 17.624016), False)
sketch3.addGeometry(Part.Circle(App.Vector(75.952922, 22.907248, 0), App.Vector(0, 0, 1), 17.624016), False)
sketch3.addGeometry(Part.Circle(App.Vector(124.212922, -27.892752, 0), App.Vector(0, 0, 1), 17.624016), False)
sketch3.addGeometry(Part.Circle(App.Vector(124.212922, 22.907248, 0), App.Vector(0, 0, 1), 17.624016), False)
sketch3.addGeometry(Part.Circle(App.Vector(-68.827078, 73.707248, 0), App.Vector(0, 0, 1), 17.624016), False)
sketch3.addGeometry(Part.Circle(App.Vector(-20.567078, 73.707248, 0), App.Vector(0, 0, 1), 17.624016), False)
sketch3.addGeometry(Part.Circle(App.Vector(-68.827078, 124.507248, 0), App.Vector(0, 0, 1), 20.01992), False)
sketch3.addGeometry(Part.Circle(App.Vector(-20.567078, 124.507248, 0), App.Vector(0, 0, 1), 17.624016), False)
sketch3.addGeometry(Part.Circle(App.Vector(27.692922, 73.707248, 0), App.Vector(0, 0, 1), 17.624016), False)
sketch3.addGeometry(Part.Circle(App.Vector(75.952922, 73.707248, 0), App.Vector(0, 0, 1), 17.624016), False)
sketch3.addGeometry(Part.Circle(App.Vector(124.212922, 73.707248, 0), App.Vector(0, 0, 1), 17.624016), False)
sketch3.addGeometry(Part.Circle(App.Vector(27.692922, 124.507248, 0), App.Vector(0, 0, 1), 17.624016), False)
sketch3.addGeometry(Part.Circle(App.Vector(75.952922, 124.507248, 0), App.Vector(0, 0, 1), 17.624016), False)
sketch3.addGeometry(Part.Circle(App.Vector(124.212922, 124.507248, 0), App.Vector(0, 0, 1), 17.624016), False)
sketch3.addConstraint(Sketcher.Constraint("Vertical", 0))
sketch3.addConstraint(Sketcher.Constraint("Horizontal", 1))
sketch3.addConstraint(Sketcher.Constraint("Vertical", 2))
sketch3.addConstraint(Sketcher.Constraint("Horizontal", 3))
sketch3.addConstraint(Sketcher.Constraint("Equal", 4, 5))
sketch3.addConstraint(Sketcher.Constraint("Equal", 5, 6))
sketch3.addConstraint(Sketcher.Constraint("Equal", 6, 7))
sketch3.addConstraint(Sketcher.Constraint("Equal", 7, 8))
sketch3.addConstraint(Sketcher.Constraint("Equal", 8, 9))
sketch3.addConstraint(Sketcher.Constraint("Equal", 9, 10))
sketch3.addConstraint(Sketcher.Constraint("Equal", 10, 11))
sketch3.addConstraint(Sketcher.Constraint("Equal", 11, 12))
sketch3.addConstraint(Sketcher.Constraint("Equal", 12, 13))
sketch3.addConstraint(Sketcher.Constraint("Equal", 13, 14))
sketch3.addConstraint(Sketcher.Constraint("Equal", 14, 15))
sketch3.addConstraint(Sketcher.Constraint("Equal", 15, 16))
sketch3.addConstraint(Sketcher.Constraint("Equal", 16, 17))
sketch3.addConstraint(Sketcher.Constraint("Equal", 17, 18))
sketch3.addConstraint(Sketcher.Constraint("Equal", 18, 19))
sketch3.addConstraint(Sketcher.Constraint("Equal", 19, 20))
sketch3.addConstraint(Sketcher.Constraint("Equal", 20, 22))
sketch3.addConstraint(Sketcher.Constraint("Equal", 22, 23))
sketch3.addConstraint(Sketcher.Constraint("Equal", 23, 24))
sketch3.addConstraint(Sketcher.Constraint("Equal", 24, 25))
sketch3.addConstraint(Sketcher.Constraint("Equal", 25, 26))
sketch3.addConstraint(Sketcher.Constraint("Equal", 26, 27))
sketch3.addConstraint(Sketcher.Constraint("Equal", 27, 28))
sketch3.addConstraint(Sketcher.Constraint("Horizontal", 4, 3, 5, 3))
sketch3.addConstraint(Sketcher.Constraint("Horizontal", 6, 3, 8, 3))
sketch3.addConstraint(Sketcher.Constraint("Horizontal", 7, 3, 9, 3))
sketch3.addConstraint(Sketcher.Constraint("Horizontal", 5, 3, 10, 3))
sketch3.addConstraint(Sketcher.Constraint("Horizontal", 10, 3, 11, 3))
sketch3.addConstraint(Sketcher.Constraint("Horizontal", 11, 3, 12, 3))
sketch3.addConstraint(Sketcher.Constraint("Horizontal", 8, 3, 13, 3))
sketch3.addConstraint(Sketcher.Constraint("Horizontal", 13, 3, 14, 3))
sketch3.addConstraint(Sketcher.Constraint("Horizontal", 9, 3, 15, 3))
sketch3.addConstraint(Sketcher.Constraint("Horizontal", 15, 3, 16, 3))
sketch3.addConstraint(Sketcher.Constraint("Horizontal", 14, 3, 17, 3))
sketch3.addConstraint(Sketcher.Constraint("Horizontal", 16, 3, 18, 3))
sketch3.addConstraint(Sketcher.Constraint("Horizontal", 19, 3, 20, 3))
sketch3.addConstraint(Sketcher.Constraint("Horizontal", 21, 3, 22, 3))
sketch3.addConstraint(Sketcher.Constraint("Horizontal", 20, 3, 23, 3))
sketch3.addConstraint(Sketcher.Constraint("Horizontal", 23, 3, 24, 3))
sketch3.addConstraint(Sketcher.Constraint("Horizontal", 24, 3, 25, 3))
sketch3.addConstraint(Sketcher.Constraint("Horizontal", 22, 3, 26, 3))
sketch3.addConstraint(Sketcher.Constraint("Horizontal", 26, 3, 27, 3))
sketch3.addConstraint(Sketcher.Constraint("Horizontal", 27, 3, 28, 3))
sketch3.addConstraint(Sketcher.Constraint("Vertical", 4, 3, 6, 3))
sketch3.addConstraint(Sketcher.Constraint("Vertical", 6, 3, 7, 3))
sketch3.addConstraint(Sketcher.Constraint("Vertical", 5, 3, 8, 3))
sketch3.addConstraint(Sketcher.Constraint("Vertical", 8, 3, 9, 3))
sketch3.addConstraint(Sketcher.Constraint("Vertical", 10, 3, 13, 3))
sketch3.addConstraint(Sketcher.Constraint("Vertical", 11, 3, 14, 3))
sketch3.addConstraint(Sketcher.Constraint("Vertical", 13, 3, 15, 3))
sketch3.addConstraint(Sketcher.Constraint("Vertical", 14, 3, 16, 3))
sketch3.addConstraint(Sketcher.Constraint("Vertical", 12, 3, 17, 3))
sketch3.addConstraint(Sketcher.Constraint("Vertical", 17, 3, 18, 3))
sketch3.addConstraint(Sketcher.Constraint("Vertical", 7, 3, 19, 3))
sketch3.addConstraint(Sketcher.Constraint("Vertical", 9, 3, 20, 3))
sketch3.addConstraint(Sketcher.Constraint("Vertical", 19, 3, 21, 3))
sketch3.addConstraint(Sketcher.Constraint("Vertical", 20, 3, 22, 3))
sketch3.addConstraint(Sketcher.Constraint("Vertical", 15, 3, 23, 3))
sketch3.addConstraint(Sketcher.Constraint("Vertical", 16, 3, 24, 3))
sketch3.addConstraint(Sketcher.Constraint("Vertical", 18, 3, 25, 3))
sketch3.addConstraint(Sketcher.Constraint("Vertical", 23, 3, 26, 3))
sketch3.addConstraint(Sketcher.Constraint("Vertical", 24, 3, 27, 3))
sketch3.addConstraint(Sketcher.Constraint("Vertical", 25, 3, 28, 3))
sketch3.addConstraint(Sketcher.Constraint("DistanceY", 0, 2, 0, 1, Q("11 in")))
sketch3.addConstraint(Sketcher.Constraint("DistanceX", 1, 1, 1, 2, Q("10.5 in")))
sketch3.addConstraint(Sketcher.Constraint("DistanceY", 4, 3, 6, 3, Q("2 in")))
sketch3.addConstraint(Sketcher.Constraint("DistanceY", 6, 3, 7, 3, Q("2 in")))
sketch3.addConstraint(Sketcher.Constraint("DistanceY", 7, 3, 19, 3, Q("2 in")))
sketch3.addConstraint(Sketcher.Constraint("DistanceY", 19, 3, 21, 3, Q("2 in")))
sketch3.addConstraint(Sketcher.Constraint("DistanceX", 4, 3, 5, 3, Q("1.9 in")))
sketch3.addConstraint(Sketcher.Constraint("DistanceX", 5, 3, 10, 3, Q("1.9 in")))
sketch3.addConstraint(Sketcher.Constraint("DistanceX", 10, 3, 11, 3, Q("1.9 in")))
sketch3.addConstraint(Sketcher.Constraint("DistanceX", 11, 3, 12, 3, Q("1.9 in")))
sketch3.addConstraint(Sketcher.Constraint("Diameter", 21, 40.03984))
sketch3.addConstraint(Sketcher.Constraint("Diameter", 4, 35.248032))
sketch3.addConstraint(Sketcher.Constraint("DistanceX", 4, 3, -1, 1, 68.827078))
sketch3.addConstraint(Sketcher.Constraint("DistanceY", 4, 3, -1, 1, 78.692752))
sketch3.addConstraint(Sketcher.Constraint("DistanceY", 0, 2, 4, 3, 32.725241))
sketch3.addConstraint(Sketcher.Constraint("DistanceX", 0, 2, -1, 1, 105.946533))
pad3 = body2.newObject("PartDesign::Pad", "Pad002")
pad3.Profile = sketch3
pad3.Length = Q("0.01 in")

doc.recompute()
